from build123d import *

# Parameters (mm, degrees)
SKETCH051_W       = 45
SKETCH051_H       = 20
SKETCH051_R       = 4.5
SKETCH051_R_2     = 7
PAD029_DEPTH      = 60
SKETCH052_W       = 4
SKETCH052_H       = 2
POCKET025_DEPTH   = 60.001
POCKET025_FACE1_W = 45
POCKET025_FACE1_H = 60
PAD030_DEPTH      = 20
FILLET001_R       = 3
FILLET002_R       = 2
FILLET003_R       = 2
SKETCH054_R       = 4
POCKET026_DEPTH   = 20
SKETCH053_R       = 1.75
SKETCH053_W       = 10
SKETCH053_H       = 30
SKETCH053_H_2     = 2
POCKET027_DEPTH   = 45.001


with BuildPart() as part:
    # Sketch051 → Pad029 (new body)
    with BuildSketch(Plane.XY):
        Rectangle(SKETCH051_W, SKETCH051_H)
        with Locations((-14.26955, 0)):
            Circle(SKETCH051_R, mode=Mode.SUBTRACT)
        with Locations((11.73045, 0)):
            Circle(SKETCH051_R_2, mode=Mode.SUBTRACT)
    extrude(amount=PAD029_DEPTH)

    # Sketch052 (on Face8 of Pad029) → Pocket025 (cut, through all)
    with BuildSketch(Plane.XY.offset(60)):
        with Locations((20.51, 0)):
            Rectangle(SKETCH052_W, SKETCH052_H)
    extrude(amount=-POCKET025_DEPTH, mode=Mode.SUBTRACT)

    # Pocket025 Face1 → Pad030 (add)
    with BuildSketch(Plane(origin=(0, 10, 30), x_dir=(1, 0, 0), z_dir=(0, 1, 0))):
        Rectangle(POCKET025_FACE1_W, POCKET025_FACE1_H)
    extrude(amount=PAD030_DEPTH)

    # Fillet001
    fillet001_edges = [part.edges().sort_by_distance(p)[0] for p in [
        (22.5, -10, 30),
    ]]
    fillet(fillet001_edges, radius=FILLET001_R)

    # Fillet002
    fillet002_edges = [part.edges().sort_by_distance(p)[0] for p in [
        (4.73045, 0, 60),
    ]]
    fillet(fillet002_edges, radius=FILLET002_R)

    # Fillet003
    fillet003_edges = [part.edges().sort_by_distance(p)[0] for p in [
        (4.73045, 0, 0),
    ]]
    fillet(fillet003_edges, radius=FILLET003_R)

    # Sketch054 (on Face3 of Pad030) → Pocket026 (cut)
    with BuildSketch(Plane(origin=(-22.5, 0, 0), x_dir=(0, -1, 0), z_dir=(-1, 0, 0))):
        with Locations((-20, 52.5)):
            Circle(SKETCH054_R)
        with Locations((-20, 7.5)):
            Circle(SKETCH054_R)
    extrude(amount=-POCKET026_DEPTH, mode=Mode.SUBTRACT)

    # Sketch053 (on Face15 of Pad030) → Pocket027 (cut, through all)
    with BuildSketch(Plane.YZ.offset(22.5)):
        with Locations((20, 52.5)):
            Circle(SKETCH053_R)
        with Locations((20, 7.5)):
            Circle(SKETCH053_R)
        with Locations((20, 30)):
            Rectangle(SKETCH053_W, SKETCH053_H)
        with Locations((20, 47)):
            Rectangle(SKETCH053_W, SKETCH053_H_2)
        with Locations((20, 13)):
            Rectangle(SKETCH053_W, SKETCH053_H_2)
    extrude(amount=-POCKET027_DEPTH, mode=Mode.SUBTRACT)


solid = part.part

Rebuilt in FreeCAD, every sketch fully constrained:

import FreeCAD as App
import Part
import Sketcher

V = App.Vector


def edges_at(feature, points):
    """Names of the edges that pass closest to the given points."""
    edges = feature.Shape.Edges
    near = lambda p: min(range(len(edges)), key=lambda i: edges[i].distToShape(Part.Vertex(*p))[0])
    return sorted({f"Edge{near(p) + 1}" for p in points})


def add_polygon(sketch, points):
    """Adds a closed chain of lines whose ends are joined by coincident constraints."""
    first, n = sketch.GeometryCount, len(points)
    for a, b in zip(points, points[1:] + points[:1]):
        sketch.addGeometry(Part.LineSegment(App.Vector(*a, 0), App.Vector(*b, 0)), False)
    for i in range(n):
        sketch.addConstraint(Sketcher.Constraint("Coincident", first + i, 2, first + (i + 1) % n, 1))

doc = App.newDocument("Part")
params = doc.addObject("Spreadsheet::Sheet", "Params")
for row, (alias, value) in enumerate([
    ("sketch1_diameter", "9 mm"),
    ("sketch1_diameter2", "14 mm"),
    ("sketch1_width", "45 mm"),
    ("sketch1_height", "20 mm"),
    ("pad1_length", "60 mm"),
    ("sketch2_width", "4 mm"),
    ("sketch2_height", "2 mm"),
    ("sketch3_width", "45 mm"),
    ("sketch3_height", "60 mm"),
    ("pad2_length", "20 mm"),
    ("fillet_radius", "3 mm"),
    ("fillet2_radius", "2 mm"),
    ("fillet3_radius", "2 mm"),
    ("sketch4_diameter", "8 mm"),
    ("pocket2_length", "20 mm"),
    ("sketch5_diameter", "3.5 mm"),
    ("sketch5_width", "10 mm"),
    ("sketch5_height", "30 mm"),
    ("sketch5_height2", "2 mm"),
], start=1):
    params.set(f"A{row}", alias)
    params.set(f"B{row}", "=" + value)
    params.setAlias(f"B{row}", alias)

body = doc.addObject("PartDesign::Body", "Body")

sketch1 = body.newObject("Sketcher::SketchObject", "Sketch")
sketch1.AttachmentSupport = (doc.getObject("XY_Plane"), [""])
sketch1.MapMode = "FlatFace"
add_polygon(sketch1, [(-22.5, 10), (-22.5, -10), (22.5, -10), (22.5, 10)])
sketch1.addGeometry(Part.Circle(V(-14.3, 0, 0), V(0, 0, 1), 4.5), False)
sketch1.addGeometry(Part.Circle(V(11.7, 0, 0), V(0, 0, 1), 7), False)
sketch1.addConstraint([
    Sketcher.Constraint("Vertical", 0),
    Sketcher.Constraint("Horizontal", 1),
    Sketcher.Constraint("Vertical", 2),
    Sketcher.Constraint("Horizontal", 3),
    Sketcher.Constraint("Symmetric", 0, 2, 2, 2, -1, 1),
    Sketcher.Constraint("PointOnObject", 4, 3, -1),
    Sketcher.Constraint("PointOnObject", 5, 3, -1),
    Sketcher.Constraint("Diameter", 4, 9.0),
    Sketcher.Constraint("Diameter", 5, 14.0),
    Sketcher.Constraint("DistanceX", 1, 1, 1, 2, 45.0),
    Sketcher.Constraint("DistanceY", 0, 2, 0, 1, 20.0),
    Sketcher.Constraint("DistanceX", 4, 3, 5, 3, 26.0),
    Sketcher.Constraint("DistanceX", 4, 3, -1, 1, 14.26955),
])
sketch1.setExpression("Constraints[11]", "Params.sketch1_diameter")
sketch1.setExpression("Constraints[12]", "Params.sketch1_diameter2")
sketch1.setExpression("Constraints[13]", "Params.sketch1_width")
sketch1.setExpression("Constraints[14]", "Params.sketch1_height")
pad1 = body.newObject("PartDesign::Pad", "Pad")
pad1.Profile = sketch1
pad1.setExpression("Length", "Params.pad1_length")

sketch2 = body.newObject("Sketcher::SketchObject", "Sketch001")
sketch2.AttachmentSupport = (doc.getObject("XY_Plane"), [""])
sketch2.MapMode = "FlatFace"
sketch2.AttachmentOffset = App.Placement(V(0, 0, 60), App.Rotation())
add_polygon(sketch2, [(18.5, 1), (18.5, -1), (22.5, -1), (22.5, 1)])
sketch2.addConstraint([
    Sketcher.Constraint("Vertical", 0),
    Sketcher.Constraint("Horizontal", 1),
    Sketcher.Constraint("Vertical", 2),
    Sketcher.Constraint("Horizontal", 3),
    Sketcher.Constraint("DistanceX", 1, 1, 1, 2, 4.0),
    Sketcher.Constraint("DistanceY", 0, 2, 0, 1, 2.0),
    Sketcher.Constraint("DistanceY", 0, 2, -1, 1, 1.0),
    Sketcher.Constraint("DistanceX", -1, 1, 0, 2, 18.51),
])
sketch2.setExpression("Constraints[8]", "Params.sketch2_width")
sketch2.setExpression("Constraints[9]", "Params.sketch2_height")
pocket1 = body.newObject("PartDesign::Pocket", "Pocket")
pocket1.Profile = sketch2
pocket1.Type = "ThroughAll"

sketch3 = body.newObject("Sketcher::SketchObject", "Sketch002")
sketch3.AttachmentSupport = (doc.getObject("XZ_Plane"), [""])
sketch3.MapMode = "FlatFace"
sketch3.AttachmentOffset = App.Placement(V(0, 0, -10), App.Rotation())
add_polygon(sketch3, [(-22, 0), (-22, 60), (22, 60), (22, 0)])
sketch3.addConstraint([
    Sketcher.Constraint("Vertical", 0),
    Sketcher.Constraint("Horizontal", 1),
    Sketcher.Constraint("Vertical", 2),
    Sketcher.Constraint("Horizontal", 3),
    Sketcher.Constraint("Symmetric", 2, 2, 3, 2, -1, 1),
    Sketcher.Constraint("DistanceX", 1, 1, 1, 2, 45.0),
    Sketcher.Constraint("DistanceY", 0, 1, 0, 2, 60.0),
])
sketch3.setExpression("Constraints[9]", "Params.sketch3_width")
sketch3.setExpression("Constraints[10]", "Params.sketch3_height")
pad2 = body.newObject("PartDesign::Pad", "Pad001")
pad2.Profile = sketch3
pad2.setExpression("Length", "Params.pad2_length")
pad2.Reversed = True
doc.recompute()

fillet = body.newObject("PartDesign::Fillet", "Fillet")
fillet.Base = (pad2, edges_at(pad2, [(22.5, -10, 30)]))
fillet.setExpression("Radius", "Params.fillet_radius")
doc.recompute()

fillet2 = body.newObject("PartDesign::Fillet", "Fillet001")
fillet2.Base = (fillet, edges_at(fillet, [(4.73, 0, 60)]))
fillet2.setExpression("Radius", "Params.fillet2_radius")
doc.recompute()

fillet3 = body.newObject("PartDesign::Fillet", "Fillet002")
fillet3.Base = (fillet2, edges_at(fillet2, [(4.73, 0, 0)]))
fillet3.setExpression("Radius", "Params.fillet3_radius")

sketch4 = body.newObject("Sketcher::SketchObject", "Sketch003")
sketch4.AttachmentSupport = (doc.getObject("YZ_Plane"), [""])
sketch4.MapMode = "FlatFace"
sketch4.AttachmentOffset = App.Placement(V(0, 0, -22.5), App.Rotation())
sketch4.addGeometry([
    Part.Circle(V(20, 52.5, 0), V(0, 0, 1), 4),
    Part.Circle(V(20, 7.5, 0), V(0, 0, 1), 4),
], False)
sketch4.addConstraint([
    Sketcher.Constraint("Equal", 0, 1),
    Sketcher.Constraint("Vertical", 0, 3, 1, 3),
    Sketcher.Constraint("Diameter", 0, 8.0),
    Sketcher.Constraint("DistanceX", -1, 1, 0, 3, 20.0),
    Sketcher.Constraint("DistanceY", 1, 3, 0, 3, 45.0),
    Sketcher.Constraint("DistanceY", -1, 1, 0, 3, 52.5),
])
sketch4.setExpression("Constraints[2]", "Params.sketch4_diameter")
pocket2 = body.newObject("PartDesign::Pocket", "Pocket001")
pocket2.Profile = sketch4
pocket2.setExpression("Length", "Params.pocket2_length")
pocket2.Reversed = True

sketch5 = body.newObject("Sketcher::SketchObject", "Sketch004")
sketch5.AttachmentSupport = (doc.getObject("YZ_Plane"), [""])
sketch5.MapMode = "FlatFace"
sketch5.AttachmentOffset = App.Placement(V(0, 0, 22.5), App.Rotation())
sketch5.addGeometry(Part.Circle(V(20, 52.5, 0), V(0, 0, 1), 1.8), False)
sketch5.addGeometry(Part.Circle(V(20, 7.5, 0), V(0, 0, 1), 1.8), False)
add_polygon(sketch5, [(15, 45), (15, 15), (25, 15), (25, 45)])
add_polygon(sketch5, [(15, 48), (15, 46), (25, 46), (25, 48)])
add_polygon(sketch5, [(15, 14), (15, 12), (25, 12), (25, 14)])
sketch5.addConstraint([
    Sketcher.Constraint("Vertical", 2),
    Sketcher.Constraint("Horizontal", 3),
    Sketcher.Constraint("Vertical", 4),
    Sketcher.Constraint("Horizontal", 5),
    Sketcher.Constraint("Vertical", 6),
    Sketcher.Constraint("Horizontal", 7),
    Sketcher.Constraint("Vertical", 8),
    Sketcher.Constraint("Horizontal", 9),
    Sketcher.Constraint("Vertical", 10),
    Sketcher.Constraint("Horizontal", 11),
    Sketcher.Constraint("Vertical", 12),
    Sketcher.Constraint("Horizontal", 13),
    Sketcher.Constraint("Equal", 0, 1),
    Sketcher.Constraint("Vertical", 0, 3, 1, 3),
    Sketcher.Constraint("Vertical", 5, 2, 6, 2),
    Sketcher.Constraint("Vertical", 4, 2, 7, 2),
    Sketcher.Constraint("Vertical", 9, 2, 10, 2),
    Sketcher.Constraint("Vertical", 8, 2, 11, 2),
    Sketcher.Constraint("Equal", 8, 10),
    Sketcher.Constraint("Diameter", 0, 3.5),
    Sketcher.Constraint("DistanceX", 3, 1, 3, 2, 10.0),
    Sketcher.Constraint("DistanceY", 2, 2, 2, 1, 30.0),
    Sketcher.Constraint("DistanceY", 6, 2, 6, 1, 2.0),
    Sketcher.Constraint("DistanceX", -1, 1, 0, 3, 20.0),
    Sketcher.Constraint("DistanceX", -1, 1, 2, 2, 15.0),
    Sketcher.Constraint("DistanceY", -1, 1, 2, 2, 15.0),
    Sketcher.Constraint("DistanceY", -1, 1, 6, 2, 46.0),
    Sketcher.Constraint("DistanceY", -1, 1, 10, 2, 12.0),
    Sketcher.Constraint("DistanceY", 1, 3, 0, 3, 45.0),
    Sketcher.Constraint("DistanceY", -1, 1, 0, 3, 52.5),
])
sketch5.setExpression("Constraints[31]", "Params.sketch5_diameter")
sketch5.setExpression("Constraints[32]", "Params.sketch5_width")
sketch5.setExpression("Constraints[33]", "Params.sketch5_height")
sketch5.setExpression("Constraints[34]", "Params.sketch5_height2")
pocket3 = body.newObject("PartDesign::Pocket", "Pocket002")
pocket3.Profile = sketch5
pocket3.Type = "ThroughAll"

doc.recompute()
